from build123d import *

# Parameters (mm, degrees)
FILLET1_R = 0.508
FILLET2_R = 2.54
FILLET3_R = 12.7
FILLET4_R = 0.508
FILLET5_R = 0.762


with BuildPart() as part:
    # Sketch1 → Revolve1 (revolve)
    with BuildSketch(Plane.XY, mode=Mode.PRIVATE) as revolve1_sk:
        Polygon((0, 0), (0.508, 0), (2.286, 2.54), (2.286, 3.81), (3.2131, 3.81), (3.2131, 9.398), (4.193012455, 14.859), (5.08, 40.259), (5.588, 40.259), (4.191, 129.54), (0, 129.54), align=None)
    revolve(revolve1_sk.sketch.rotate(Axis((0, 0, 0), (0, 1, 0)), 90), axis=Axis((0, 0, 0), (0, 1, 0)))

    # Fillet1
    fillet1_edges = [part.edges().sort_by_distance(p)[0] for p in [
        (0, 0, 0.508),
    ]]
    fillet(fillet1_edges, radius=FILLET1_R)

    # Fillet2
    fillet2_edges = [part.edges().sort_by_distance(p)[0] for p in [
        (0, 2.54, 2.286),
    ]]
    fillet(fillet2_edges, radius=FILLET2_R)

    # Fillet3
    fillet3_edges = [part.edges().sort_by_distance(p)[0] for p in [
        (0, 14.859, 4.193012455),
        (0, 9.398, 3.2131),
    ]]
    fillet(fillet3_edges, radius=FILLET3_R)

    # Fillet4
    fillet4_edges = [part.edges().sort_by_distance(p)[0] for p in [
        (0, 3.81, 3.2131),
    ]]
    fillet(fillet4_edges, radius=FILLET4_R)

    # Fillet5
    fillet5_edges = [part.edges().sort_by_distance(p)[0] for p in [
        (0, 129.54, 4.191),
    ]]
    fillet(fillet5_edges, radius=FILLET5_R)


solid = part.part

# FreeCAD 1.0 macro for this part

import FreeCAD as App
import Part
import Sketcher

V = App.Vector
Q = App.Units.Quantity


def edges_at(feature, points):
    """Names of the edges that pass closest to the given points."""
    edges = feature.Shape.Edges
    near = lambda p: min(range(len(edges)), key=lambda i: edges[i].distToShape(Part.Vertex(*p))[0])
    return sorted({f"Edge{near(p) + 1}" for p in points})

doc = App.newDocument("Part")
params = doc.addObject("Spreadsheet::Sheet", "Params")
for row, (alias, value) in enumerate([
    ("sketch1_height", "5.1 in"),
    ("sketch1_width", "0.02 in"),
    ("sketch1_height2", "0.05 in"),
    ("sketch1_height3", "0.22 in"),
    ("sketch1_width2", "0.165 in"),
    ("revolution_angle", "360 deg"),
    ("fillet_radius", "0.02 in"),
    ("fillet2_radius", "0.1 in"),
    ("fillet3_radius", "0.5 in"),
    ("fillet4_radius", "0.02 in"),
    ("fillet5_radius", "0.03 in"),
], start=1):
    params.set(f"A{row}", alias)
    params.set(f"B{row}", "=" + value)
    params.setAlias(f"B{row}", alias)

body = doc.addObject("PartDesign::Body", "Body")

# Sketch on XY plane
sketch1 = body.newObject("Sketcher::SketchObject", "Sketch")
sketch1.AttachmentSupport = (doc.getObject("XY_Plane"), [""])
sketch1.MapMode = "FlatFace"
sketch1.addGeometry([
    Part.LineSegment(V(0, 0, 0), V(0.5, 0, 0)),  # 0
    Part.LineSegment(V(0.5, 0, 0), V(2.3, 2.5, 0)),  # 1
    Part.LineSegment(V(2.3, 2.5, 0), V(2.3, 3.8, 0)),  # 2
    Part.LineSegment(V(2.3, 3.8, 0), V(3.2, 3.8, 0)),  # 3
    Part.LineSegment(V(3.2, 3.8, 0), V(3.2, 9.4, 0)),  # 4
    Part.LineSegment(V(3.2, 9.4, 0), V(4.2, 14.9, 0)),  # 5
    Part.LineSegment(V(4.2, 14.9, 0), V(5.1, 40.3, 0)),  # 6
    Part.LineSegment(V(5.1, 40.3, 0), V(5.6, 40.3, 0)),  # 7
    Part.LineSegment(V(5.6, 40.3, 0), V(4.2, 129.5, 0)),  # 8
    Part.LineSegment(V(4.2, 129.5, 0), V(0, 129.5, 0)),  # 9
    Part.LineSegment(V(0, 129.5, 0), V(0, 0, 0)),  # 10
], False)
sketch1.addConstraint([
    Sketcher.Constraint("Coincident", 0, 2, 1, 1),
    Sketcher.Constraint("Coincident", 1, 2, 2, 1),
    Sketcher.Constraint("Coincident", 2, 2, 3, 1),
    Sketcher.Constraint("Coincident", 3, 2, 4, 1),
    Sketcher.Constraint("Coincident", 4, 2, 5, 1),
    Sketcher.Constraint("Coincident", 5, 2, 6, 1),
    Sketcher.Constraint("Coincident", 6, 2, 7, 1),
    Sketcher.Constraint("Coincident", 7, 2, 8, 1),
    Sketcher.Constraint("Coincident", 8, 2, 9, 1),
    Sketcher.Constraint("Coincident", 9, 2, 10, 1),
    Sketcher.Constraint("Coincident", 10, 2, 0, 1),
    Sketcher.Constraint("Horizontal", 0),
    Sketcher.Constraint("Vertical", 2),
    Sketcher.Constraint("Horizontal", 3),
    Sketcher.Constraint("Vertical", 4),
    Sketcher.Constraint("Horizontal", 7),
    Sketcher.Constraint("Horizontal", 9),
    Sketcher.Constraint("Vertical", 10),
    Sketcher.Constraint("Coincident", 10, 2, -1, 1),
    Sketcher.Constraint("Equal", 0, 7),
    Sketcher.Constraint("DistanceY", 10, 2, 10, 1, Q("5.1 in")),
    Sketcher.Constraint("Angle", 6, Q("88 deg")),
    Sketcher.Constraint("DistanceY", 5, 2, 6, 2, Q("1 in")),
    Sketcher.Constraint("DistanceX", 0, 1, 0, 2, Q("0.02 in")),
    Sketcher.Constraint("DistanceY", 2, 1, 2, 2, Q("0.05 in")),
    Sketcher.Constraint("DistanceY", 4, 1, 4, 2, Q("0.22 in")),
    Sketcher.Constraint("DistanceY", -1, 1, 1, 2, Q("0.1 in")),
    Sketcher.Constraint("DistanceX", -1, 1, 6, 2, Q("0.2 in")),
    Sketcher.Constraint("DistanceX", 9, 2, 9, 1, Q("0.165 in")),
    Sketcher.Constraint("DistanceX", -1, 1, 1, 2, Q("0.09 in")),
    Sketcher.Constraint("DistanceX", 3, 1, 3, 2, Q("0.0365 in")),
    Sketcher.Constraint("DistanceY", -1, 1, 5, 2, Q("0.585 in")),
])
sketch1.setExpression("Constraints[20]", "Params.sketch1_height")
sketch1.setExpression("Constraints[23]", "Params.sketch1_width")
sketch1.setExpression("Constraints[24]", "Params.sketch1_height2")
sketch1.setExpression("Constraints[25]", "Params.sketch1_height3")
sketch1.setExpression("Constraints[28]", "Params.sketch1_width2")
revolution = body.newObject("PartDesign::Revolution", "Revolution")
revolution.Profile = sketch1
revolution.ReferenceAxis = (sketch1, ["V_Axis"])
revolution.setExpression("Angle", "Params.revolution_angle")
doc.recompute()

fillet = body.newObject("PartDesign::Fillet", "Fillet")
fillet.Base = (revolution, edges_at(revolution, [(0, 0, 0.508)]))
fillet.setExpression("Radius", "Params.fillet_radius")
doc.recompute()

fillet2 = body.newObject("PartDesign::Fillet", "Fillet001")
fillet2.Base = (fillet, edges_at(fillet, [(0, 2.54, 2.286)]))
fillet2.setExpression("Radius", "Params.fillet2_radius")
doc.recompute()

fillet3 = body.newObject("PartDesign::Fillet", "Fillet002")
fillet3.Base = (fillet2, edges_at(fillet2, [(0, 14.859, 4.193), (0, 9.398, 3.213)]))
fillet3.setExpression("Radius", "Params.fillet3_radius")
doc.recompute()

fillet4 = body.newObject("PartDesign::Fillet", "Fillet003")
fillet4.Base = (fillet3, edges_at(fillet3, [(0, 3.81, 3.213)]))
fillet4.setExpression("Radius", "Params.fillet4_radius")
doc.recompute()

fillet5 = body.newObject("PartDesign::Fillet", "Fillet004")
fillet5.Base = (fillet4, edges_at(fillet4, [(0, 129.54, 4.191)]))
fillet5.setExpression("Radius", "Params.fillet5_radius")

doc.recompute()
